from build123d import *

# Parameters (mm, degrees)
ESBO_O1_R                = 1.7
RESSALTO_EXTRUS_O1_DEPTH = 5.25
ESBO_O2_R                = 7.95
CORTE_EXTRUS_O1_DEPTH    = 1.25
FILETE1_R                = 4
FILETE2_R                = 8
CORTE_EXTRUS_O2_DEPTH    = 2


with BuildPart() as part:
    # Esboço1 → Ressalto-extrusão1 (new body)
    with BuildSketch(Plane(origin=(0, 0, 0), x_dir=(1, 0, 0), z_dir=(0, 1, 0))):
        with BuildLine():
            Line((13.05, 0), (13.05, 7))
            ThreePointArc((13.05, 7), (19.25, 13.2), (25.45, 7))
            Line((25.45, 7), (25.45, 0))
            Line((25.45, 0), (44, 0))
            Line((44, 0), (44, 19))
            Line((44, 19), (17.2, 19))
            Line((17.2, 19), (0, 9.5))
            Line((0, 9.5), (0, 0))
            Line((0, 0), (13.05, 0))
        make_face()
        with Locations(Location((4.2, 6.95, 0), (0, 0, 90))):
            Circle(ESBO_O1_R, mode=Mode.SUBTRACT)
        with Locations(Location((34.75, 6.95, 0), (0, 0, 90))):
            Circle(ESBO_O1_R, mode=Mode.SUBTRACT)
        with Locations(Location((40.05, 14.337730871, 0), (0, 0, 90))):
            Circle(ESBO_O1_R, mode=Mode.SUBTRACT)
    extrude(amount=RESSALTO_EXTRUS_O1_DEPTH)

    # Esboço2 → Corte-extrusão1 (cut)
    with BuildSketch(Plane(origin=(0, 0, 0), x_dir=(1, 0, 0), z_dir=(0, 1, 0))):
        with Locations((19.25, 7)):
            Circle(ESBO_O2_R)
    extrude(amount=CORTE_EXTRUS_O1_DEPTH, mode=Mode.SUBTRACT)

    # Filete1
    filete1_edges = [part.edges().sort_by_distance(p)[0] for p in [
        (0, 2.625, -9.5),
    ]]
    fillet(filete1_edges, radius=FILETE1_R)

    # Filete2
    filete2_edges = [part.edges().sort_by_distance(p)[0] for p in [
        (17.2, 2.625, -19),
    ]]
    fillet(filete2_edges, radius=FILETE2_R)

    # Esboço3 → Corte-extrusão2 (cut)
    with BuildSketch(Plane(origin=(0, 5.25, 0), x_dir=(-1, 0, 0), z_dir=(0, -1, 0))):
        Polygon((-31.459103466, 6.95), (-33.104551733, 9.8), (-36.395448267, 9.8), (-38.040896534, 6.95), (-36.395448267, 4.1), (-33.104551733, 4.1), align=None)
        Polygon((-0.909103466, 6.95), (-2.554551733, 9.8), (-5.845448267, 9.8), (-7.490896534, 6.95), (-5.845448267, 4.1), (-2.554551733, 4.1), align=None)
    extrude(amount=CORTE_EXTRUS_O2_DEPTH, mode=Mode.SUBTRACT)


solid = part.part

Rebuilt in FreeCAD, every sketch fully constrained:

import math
import FreeCAD as App
import Part
import Sketcher

V = App.Vector
Q = App.Units.Quantity


def edges_at(feature, points):
    """Names of the edges that pass closest to the given points."""
    edges = feature.Shape.Edges
    near = lambda p: min(range(len(edges)), key=lambda i: edges[i].distToShape(Part.Vertex(*p))[0])
    return sorted({f"Edge{near(p) + 1}" for p in points})


def add_polygon(sketch, points):
    """Adds a closed chain of lines whose ends are joined by coincident constraints."""
    first, n = sketch.GeometryCount, len(points)
    for a, b in zip(points, points[1:] + points[:1]):
        sketch.addGeometry(Part.LineSegment(App.Vector(*a, 0), App.Vector(*b, 0)), False)
    for i in range(n):
        sketch.addConstraint(Sketcher.Constraint("Coincident", first + i, 2, first + (i + 1) % n, 1))

doc = App.newDocument("Part")
body = doc.addObject("PartDesign::Body", "Body")

sketch1 = doc.addObject("Sketcher::SketchObject", "Sketch")
body.addObject(sketch1)
sketch1.AttachmentSupport = (doc.XZ_Plane, [""])
sketch1.MapMode = "FlatFace"
sketch1.addGeometry(Part.LineSegment(V(13.05, 0, 0), V(13.05, -7, 0)), False)
sketch1.addGeometry(Part.ArcOfCircle(Part.Circle(V(19.25, -7, 0), V(0, 0, 1), 6.2), math.radians(180), math.radians(360)), False)
sketch1.addGeometry(Part.LineSegment(V(25.45, -7, 0), V(25.45, 0, 0)), False)
sketch1.addGeometry(Part.LineSegment(V(25.45, 0, 0), V(44, 0, 0)), False)
sketch1.addGeometry(Part.LineSegment(V(44, 0, 0), V(44, -19, 0)), False)
sketch1.addGeometry(Part.LineSegment(V(44, -19, 0), V(17.2, -19, 0)), False)
sketch1.addGeometry(Part.LineSegment(V(17.2, -19, 0), V(0, -9.5, 0)), False)
sketch1.addGeometry(Part.LineSegment(V(0, -9.5, 0), V(0, 0, 0)), False)
sketch1.addGeometry(Part.LineSegment(V(0, 0, 0), V(13.05, 0, 0)), False)
sketch1.addGeometry(Part.Circle(V(4.2, -6.95, 0), V(0, 0, 1), 1.7), False)
sketch1.addGeometry(Part.Circle(V(34.75, -6.95, 0), V(0, 0, 1), 1.7), False)
sketch1.addGeometry(Part.Circle(V(40.05, -14.337731, 0), V(0, 0, 1), 1.7), False)
sketch1.addConstraint(Sketcher.Constraint("Tangent", 0, 2, 1, 1))
sketch1.addConstraint(Sketcher.Constraint("Tangent", 1, 2, 2, 1))
sketch1.addConstraint(Sketcher.Constraint("Coincident", 2, 2, 3, 1))
sketch1.addConstraint(Sketcher.Constraint("Coincident", 3, 2, 4, 1))
sketch1.addConstraint(Sketcher.Constraint("Coincident", 4, 2, 5, 1))
sketch1.addConstraint(Sketcher.Constraint("Coincident", 5, 2, 6, 1))
sketch1.addConstraint(Sketcher.Constraint("Coincident", 6, 2, 7, 1))
sketch1.addConstraint(Sketcher.Constraint("Coincident", 7, 2, 8, 1))
sketch1.addConstraint(Sketcher.Constraint("Coincident", 8, 2, 0, 1))
sketch1.addConstraint(Sketcher.Constraint("Vertical", 0))
sketch1.addConstraint(Sketcher.Constraint("Vertical", 2))
sketch1.addConstraint(Sketcher.Constraint("Horizontal", 3))
sketch1.addConstraint(Sketcher.Constraint("Vertical", 4))
sketch1.addConstraint(Sketcher.Constraint("Horizontal", 5))
sketch1.addConstraint(Sketcher.Constraint("Vertical", 7))
sketch1.addConstraint(Sketcher.Constraint("Horizontal", 8))
sketch1.addConstraint(Sketcher.Constraint("Coincident", 7, 2, -1, 1))
sketch1.addConstraint(Sketcher.Constraint("Equal", 9, 10))
sketch1.addConstraint(Sketcher.Constraint("Equal", 10, 11))
sketch1.addConstraint(Sketcher.Constraint("PointOnObject", 2, 2, -1))
sketch1.addConstraint(Sketcher.Constraint("Horizontal", 9, 3, 10, 3))
sketch1.addConstraint(Sketcher.Constraint("Diameter", 9, 3.4))
sketch1.addConstraint(Sketcher.Constraint("Radius", 1, 6.2))
sketch1.addConstraint(Sketcher.Constraint("DistanceY", 0, 2, 0, 1, 7.0))
sketch1.addConstraint(Sketcher.Constraint("DistanceY", 4, 2, 4, 1, 19.0))
sketch1.addConstraint(Sketcher.Constraint("DistanceX", 5, 2, 5, 1, 26.8))
sketch1.addConstraint(Sketcher.Constraint("DistanceY", 7, 1, 7, 2, 9.5))
sketch1.addConstraint(Sketcher.Constraint("DistanceX", -1, 1, 3, 2, 44.0))
sketch1.addConstraint(Sketcher.Constraint("DistanceX", 0, 2, 11, 3, 27.0))
sketch1.addConstraint(Sketcher.Constraint("DistanceX", 9, 3, 5, 2, 13.0))
sketch1.addConstraint(Sketcher.Constraint("DistanceX", 3, 1, 3, 2, 18.55))
sketch1.addConstraint(Sketcher.Constraint("DistanceX", 1, 3, 10, 3, 15.5))
sketch1.addConstraint(Sketcher.Constraint("DistanceY", 9, 3, -1, 1, 6.95))
sketch1.addConstraint(Sketcher.Constraint("DistanceY", 11, 3, -1, 1, 14.337731))
pad1 = doc.addObject("PartDesign::Pad", "Pad")
body.addObject(pad1)
pad1.Profile = sketch1
pad1.Length = 5.25
pad1.Reversed = True

sketch2 = doc.addObject("Sketcher::SketchObject", "Sketch001")
body.addObject(sketch2)
sketch2.AttachmentSupport = (doc.XZ_Plane, [""])
sketch2.MapMode = "FlatFace"
sketch2.addGeometry(Part.Circle(V(19.25, -7, 0), V(0, 0, 1), 7.95), False)
sketch2.addConstraint(Sketcher.Constraint("Diameter", 0, 15.9))
sketch2.addConstraint(Sketcher.Constraint("DistanceY", 0, 3, -1, 1, 7.0))
sketch2.addConstraint(Sketcher.Constraint("DistanceX", -1, 1, 0, 3, 19.25))
pocket1 = doc.addObject("PartDesign::Pocket", "Pocket")
body.addObject(pocket1)
pocket1.Profile = sketch2
pocket1.Length = 1.25
doc.recompute()

fillet = doc.addObject("PartDesign::Fillet", "Fillet")
body.addObject(fillet)
fillet.Base = (pocket1, edges_at(pocket1, [(0, 2.625, -9.5)]))
fillet.Radius = 4
doc.recompute()

fillet2 = doc.addObject("PartDesign::Fillet", "Fillet001")
body.addObject(fillet2)
fillet2.Base = (fillet, edges_at(fillet, [(17.2, 2.625, -19)]))
fillet2.Radius = 8

sketch3 = doc.addObject("Sketcher::SketchObject", "Sketch002")
body.addObject(sketch3)
sketch3.AttachmentSupport = (doc.XZ_Plane, [""])
sketch3.MapMode = "FlatFace"
sketch3.AttachmentOffset = App.Placement(V(0, 0, -5.25), App.Rotation())
add_polygon(sketch3, [(31.459103, -6.95), (33.104552, -9.8), (36.395448, -9.8), (38.040897, -6.95), (36.395448, -4.1), (33.104552, -4.1)])
add_polygon(sketch3, [(0.909103, -6.95), (2.554552, -9.8), (5.845448, -9.8), (7.490897, -6.95), (5.845448, -4.1), (2.554552, -4.1)])
sketch3.addConstraint(Sketcher.Constraint("Horizontal", 1))
sketch3.addConstraint(Sketcher.Constraint("Horizontal", 4))
sketch3.addConstraint(Sketcher.Constraint("Horizontal", 7))
sketch3.addConstraint(Sketcher.Constraint("Horizontal", 10))
sketch3.addConstraint(Sketcher.Constraint("Parallel", 0, 3))
sketch3.addConstraint(Sketcher.Constraint("Parallel", 2, 5))
sketch3.addConstraint(Sketcher.Constraint("Parallel", 3, 6))
sketch3.addConstraint(Sketcher.Constraint("Parallel", 5, 8))
sketch3.addConstraint(Sketcher.Constraint("Parallel", 6, 9))
sketch3.addConstraint(Sketcher.Constraint("Parallel", 8, 11))
sketch3.addConstraint(Sketcher.Constraint("Horizontal", 2, 2, 5, 2))
sketch3.addConstraint(Sketcher.Constraint("Horizontal", 1, 2, 6, 2))
sketch3.addConstraint(Sketcher.Constraint("Horizontal", 5, 2, 8, 2))
sketch3.addConstraint(Sketcher.Constraint("Horizontal", 4, 2, 9, 2))
sketch3.addConstraint(Sketcher.Constraint("Horizontal", 8, 2, 11, 2))
sketch3.addConstraint(Sketcher.Constraint("Vertical", 1, 2, 3, 2))
sketch3.addConstraint(Sketcher.Constraint("Vertical", 0, 2, 4, 2))
sketch3.addConstraint(Sketcher.Constraint("Equal", 4, 7))
sketch3.addConstraint(Sketcher.Constraint("Angle", 0, Q("-60 deg")))
sketch3.addConstraint(Sketcher.Constraint("DistanceY", 0, 2, -1, 1, 9.8))
sketch3.addConstraint(Sketcher.Constraint("DistanceY", 3, 2, -1, 1, 4.1))
sketch3.addConstraint(Sketcher.Constraint("DistanceX", 6, 2, 0, 2, 30.55))
sketch3.addConstraint(Sketcher.Constraint("DistanceX", 1, 1, 1, 2, 3.290897))
sketch3.addConstraint(Sketcher.Constraint("DistanceX", -1, 1, 0, 2, 33.104552))
pocket2 = doc.addObject("PartDesign::Pocket", "Pocket001")
body.addObject(pocket2)
pocket2.Profile = sketch3
pocket2.Length = 2
pocket2.Reversed = True

doc.recompute()
